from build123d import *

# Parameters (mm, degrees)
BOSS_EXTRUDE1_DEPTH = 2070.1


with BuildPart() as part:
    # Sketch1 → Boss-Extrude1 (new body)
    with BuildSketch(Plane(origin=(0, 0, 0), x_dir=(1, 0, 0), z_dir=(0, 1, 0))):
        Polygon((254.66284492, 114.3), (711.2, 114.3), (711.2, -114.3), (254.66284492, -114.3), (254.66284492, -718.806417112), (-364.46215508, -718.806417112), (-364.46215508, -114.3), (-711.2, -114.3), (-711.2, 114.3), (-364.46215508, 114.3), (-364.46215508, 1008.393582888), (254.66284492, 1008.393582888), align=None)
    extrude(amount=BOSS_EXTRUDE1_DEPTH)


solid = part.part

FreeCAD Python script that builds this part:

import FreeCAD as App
import Part
import Sketcher
Q = App.Units.Quantity


def add_polygon(sketch, points):
    """Adds a closed chain of lines whose ends are joined by coincident constraints."""
    first, n = sketch.GeometryCount, len(points)
    for a, b in zip(points, points[1:] + points[:1]):
        sketch.addGeometry(Part.LineSegment(App.Vector(*a, 0), App.Vector(*b, 0)), False)
    for i in range(n):
        sketch.addConstraint(Sketcher.Constraint("Coincident", first + i, 2, first + (i + 1) % n, 1))

doc = App.newDocument("Part")
body = doc.addObject("PartDesign::Body", "Body")

# Sketch on XZ plane
sketch1 = body.newObject("Sketcher::SketchObject", "Sketch")
sketch1.AttachmentSupport = (doc.getObject("XZ_Plane"), [""])
sketch1.MapMode = "FlatFace"
add_polygon(sketch1, [(711, -114), (255, -114), (255, -1008), (-364, -1008), (-364, -114), (-711, -114), (-711, 114), (-364, 114), (-364, 719), (255, 719), (255, 114), (711, 114)])  # lines 0-11
sketch1.addConstraint([
    Sketcher.Constraint("Horizontal", 0),
    Sketcher.Constraint("Vertical", 1),
    Sketcher.Constraint("Horizontal", 2),
    Sketcher.Constraint("Vertical", 3),
    Sketcher.Constraint("Horizontal", 4),
    Sketcher.Constraint("Vertical", 5),
    Sketcher.Constraint("Horizontal", 6),
    Sketcher.Constraint("Vertical", 7),
    Sketcher.Constraint("Horizontal", 8),
    Sketcher.Constraint("Vertical", 9),
    Sketcher.Constraint("Horizontal", 10),
    Sketcher.Constraint("Vertical", 11),
    Sketcher.Constraint("Symmetric", 4, 2, 10, 2, -1, 1),
    Sketcher.Constraint("Symmetric", 3, 2, 6, 2, -1),
    Sketcher.Constraint("Symmetric", 0, 2, 9, 2, -1),
    Sketcher.Constraint("DistanceY", 5, 1, 5, 2, Q("9 in")),
    Sketcher.Constraint("DistanceX", 4, 2, -1, 1, Q("28 in")),
    Sketcher.Constraint("DistanceX", 2, 2, 2, 1, Q("24.375 in")),
    Sketcher.Constraint("DistanceX", 0, 2, 0, 1, 456.537155),
    Sketcher.Constraint("DistanceY", 1, 2, 1, 1, 894.093583),
    Sketcher.Constraint("DistanceY", 7, 1, 7, 2, 604.506417),
])
pad1 = body.newObject("PartDesign::Pad", "Pad")
pad1.Profile = sketch1
pad1.Length = Q("81.5 in")
pad1.Reversed = True

doc.recompute()
